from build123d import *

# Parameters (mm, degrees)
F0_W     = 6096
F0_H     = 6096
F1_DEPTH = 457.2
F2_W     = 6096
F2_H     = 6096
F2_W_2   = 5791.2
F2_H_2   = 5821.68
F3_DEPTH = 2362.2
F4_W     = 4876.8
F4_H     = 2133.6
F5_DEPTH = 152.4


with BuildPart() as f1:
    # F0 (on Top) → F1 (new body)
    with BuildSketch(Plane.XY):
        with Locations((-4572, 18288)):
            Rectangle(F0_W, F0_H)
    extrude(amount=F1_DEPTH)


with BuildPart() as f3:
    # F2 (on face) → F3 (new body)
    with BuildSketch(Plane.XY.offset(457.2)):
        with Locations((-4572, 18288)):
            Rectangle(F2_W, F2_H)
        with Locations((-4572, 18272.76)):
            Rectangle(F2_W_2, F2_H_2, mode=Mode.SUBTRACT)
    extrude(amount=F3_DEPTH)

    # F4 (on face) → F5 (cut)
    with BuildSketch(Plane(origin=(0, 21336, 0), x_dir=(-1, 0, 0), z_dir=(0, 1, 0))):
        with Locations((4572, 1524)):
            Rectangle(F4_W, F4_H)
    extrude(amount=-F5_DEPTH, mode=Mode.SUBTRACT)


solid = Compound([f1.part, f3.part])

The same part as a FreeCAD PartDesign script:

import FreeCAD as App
import Part
import Sketcher
Q = App.Units.Quantity

doc = App.newDocument("Part")
body = doc.addObject("PartDesign::Body", "Body")

# Sketch on XY plane
sketch1 = body.newObject("Sketcher::SketchObject", "Sketch")
sketch1.AttachmentSupport = (doc.getObject("XY_Plane"), [""])
sketch1.MapMode = "FlatFace"
sketch1.addGeometry([
    Part.LineSegment(App.Vector(-7620, 21336, 0), App.Vector(-7620, 15240, 0)),
    Part.LineSegment(App.Vector(-7620, 15240, 0), App.Vector(-1524, 15240, 0)),
    Part.LineSegment(App.Vector(-1524, 15240, 0), App.Vector(-1524, 21336, 0)),
    Part.LineSegment(App.Vector(-1524, 21336, 0), App.Vector(-7620, 21336, 0)),
], False)
sketch1.addConstraint([
    Sketcher.Constraint("Coincident", 0, 2, 1, 1),
    Sketcher.Constraint("Coincident", 1, 2, 2, 1),
    Sketcher.Constraint("Coincident", 2, 2, 3, 1),
    Sketcher.Constraint("Coincident", 3, 2, 0, 1),
    Sketcher.Constraint("Vertical", 0),
    Sketcher.Constraint("Horizontal", 1),
    Sketcher.Constraint("Vertical", 2),
    Sketcher.Constraint("Horizontal", 3),
    Sketcher.Constraint("Equal", 3, 0),
    Sketcher.Constraint("DistanceX", 1, 1, 1, 2, Q("240 in")),
    Sketcher.Constraint("DistanceX", 0, 2, -1, 1, Q("300 in")),
    Sketcher.Constraint("DistanceY", -1, 1, 0, 2, Q("600 in")),
])
pad1 = body.newObject("PartDesign::Pad", "Pad")
pad1.Profile = sketch1
pad1.Length = Q("18 in")
body2 = doc.addObject("PartDesign::Body", "Body001")

# Sketch on XY plane
sketch2 = body2.newObject("Sketcher::SketchObject", "Sketch001")
sketch2.AttachmentSupport = (doc.getObject("XY_Plane001"), [""])
sketch2.MapMode = "FlatFace"
sketch2.AttachmentOffset = App.Placement(App.Vector(0, 0, 18 * 25.4), App.Rotation())
sketch2.addGeometry([
    Part.LineSegment(App.Vector(-7620, 21336, 0), App.Vector(-7620, 15240, 0)),  # 0
    Part.LineSegment(App.Vector(-7620, 15240, 0), App.Vector(-1524, 15240, 0)),  # 1
    Part.LineSegment(App.Vector(-1524, 15240, 0), App.Vector(-1524, 21336, 0)),  # 2
    Part.LineSegment(App.Vector(-1524, 21336, 0), App.Vector(-7620, 21336, 0)),  # 3
    Part.LineSegment(App.Vector(-1676, 15362, 0), App.Vector(-7468, 15362, 0)),  # 4
    Part.LineSegment(App.Vector(-7468, 15362, 0), App.Vector(-7468, 21184, 0)),  # 5
    Part.LineSegment(App.Vector(-7468, 21184, 0), App.Vector(-1676, 21184, 0)),  # 6
    Part.LineSegment(App.Vector(-1676, 21184, 0), App.Vector(-1676, 15362, 0)),  # 7
], False)
sketch2.addConstraint([
    Sketcher.Constraint("Coincident", 0, 2, 1, 1),
    Sketcher.Constraint("Coincident", 1, 2, 2, 1),
    Sketcher.Constraint("Coincident", 2, 2, 3, 1),
    Sketcher.Constraint("Coincident", 3, 2, 0, 1),
    Sketcher.Constraint("Coincident", 4, 2, 5, 1),
    Sketcher.Constraint("Coincident", 5, 2, 6, 1),
    Sketcher.Constraint("Coincident", 6, 2, 7, 1),
    Sketcher.Constraint("Coincident", 7, 2, 4, 1),
    Sketcher.Constraint("Vertical", 0),
    Sketcher.Constraint("Horizontal", 1),
    Sketcher.Constraint("Vertical", 2),
    Sketcher.Constraint("Horizontal", 3),
    Sketcher.Constraint("Horizontal", 4),
    Sketcher.Constraint("Vertical", 5),
    Sketcher.Constraint("Horizontal", 6),
    Sketcher.Constraint("Vertical", 7),
    Sketcher.Constraint("Equal", 3, 0),
    Sketcher.Constraint("DistanceX", 1, 1, 1, 2, Q("240 in")),
    Sketcher.Constraint("DistanceX", 4, 2, 4, 1, Q("228 in")),
    Sketcher.Constraint("DistanceY", 5, 1, 5, 2, Q("229.2 in")),
    Sketcher.Constraint("DistanceX", 0, 2, -1, 1, Q("300 in")),
    Sketcher.Constraint("DistanceY", -1, 1, 0, 2, Q("600 in")),
    Sketcher.Constraint("DistanceX", 4, 2, -1, 1, Q("294 in")),
    Sketcher.Constraint("DistanceY", -1, 1, 5, 2, Q("834 in")),
])
pad2 = body2.newObject("PartDesign::Pad", "Pad001")
pad2.Profile = sketch2
pad2.Length = Q("93 in")

# Sketch on XZ plane
sketch3 = body2.newObject("Sketcher::SketchObject", "Sketch002")
sketch3.AttachmentSupport = (doc.getObject("XZ_Plane001"), [""])
sketch3.MapMode = "FlatFace"
sketch3.AttachmentOffset = App.Placement(App.Vector(0, 0, -840 * 25.4), App.Rotation())
sketch3.addGeometry([
    Part.LineSegment(App.Vector(-2134, 2591, 0), App.Vector(-2134, 457, 0)),
    Part.LineSegment(App.Vector(-2134, 457, 0), App.Vector(-7010, 457, 0)),
    Part.LineSegment(App.Vector(-7010, 457, 0), App.Vector(-7010, 2591, 0)),
    Part.LineSegment(App.Vector(-7010, 2591, 0), App.Vector(-2134, 2591, 0)),
], False)
sketch3.addConstraint([
    Sketcher.Constraint("Coincident", 0, 2, 1, 1),
    Sketcher.Constraint("Coincident", 1, 2, 2, 1),
    Sketcher.Constraint("Coincident", 2, 2, 3, 1),
    Sketcher.Constraint("Coincident", 3, 2, 0, 1),
    Sketcher.Constraint("Vertical", 0),
    Sketcher.Constraint("Horizontal", 1),
    Sketcher.Constraint("Vertical", 2),
    Sketcher.Constraint("Horizontal", 3),
    Sketcher.Constraint("DistanceX", 1, 2, 1, 1, Q("192 in")),
    Sketcher.Constraint("DistanceY", 0, 2, 0, 1, Q("84 in")),
    Sketcher.Constraint("DistanceX", 0, 2, -1, 1, Q("84 in")),
    Sketcher.Constraint("DistanceY", -1, 1, 0, 2, Q("18 in")),
])
pocket1 = body2.newObject("PartDesign::Pocket", "Pocket")
pocket1.Profile = sketch3
pocket1.Length = Q("6 in")
pocket1.Reversed = True

doc.recompute()
